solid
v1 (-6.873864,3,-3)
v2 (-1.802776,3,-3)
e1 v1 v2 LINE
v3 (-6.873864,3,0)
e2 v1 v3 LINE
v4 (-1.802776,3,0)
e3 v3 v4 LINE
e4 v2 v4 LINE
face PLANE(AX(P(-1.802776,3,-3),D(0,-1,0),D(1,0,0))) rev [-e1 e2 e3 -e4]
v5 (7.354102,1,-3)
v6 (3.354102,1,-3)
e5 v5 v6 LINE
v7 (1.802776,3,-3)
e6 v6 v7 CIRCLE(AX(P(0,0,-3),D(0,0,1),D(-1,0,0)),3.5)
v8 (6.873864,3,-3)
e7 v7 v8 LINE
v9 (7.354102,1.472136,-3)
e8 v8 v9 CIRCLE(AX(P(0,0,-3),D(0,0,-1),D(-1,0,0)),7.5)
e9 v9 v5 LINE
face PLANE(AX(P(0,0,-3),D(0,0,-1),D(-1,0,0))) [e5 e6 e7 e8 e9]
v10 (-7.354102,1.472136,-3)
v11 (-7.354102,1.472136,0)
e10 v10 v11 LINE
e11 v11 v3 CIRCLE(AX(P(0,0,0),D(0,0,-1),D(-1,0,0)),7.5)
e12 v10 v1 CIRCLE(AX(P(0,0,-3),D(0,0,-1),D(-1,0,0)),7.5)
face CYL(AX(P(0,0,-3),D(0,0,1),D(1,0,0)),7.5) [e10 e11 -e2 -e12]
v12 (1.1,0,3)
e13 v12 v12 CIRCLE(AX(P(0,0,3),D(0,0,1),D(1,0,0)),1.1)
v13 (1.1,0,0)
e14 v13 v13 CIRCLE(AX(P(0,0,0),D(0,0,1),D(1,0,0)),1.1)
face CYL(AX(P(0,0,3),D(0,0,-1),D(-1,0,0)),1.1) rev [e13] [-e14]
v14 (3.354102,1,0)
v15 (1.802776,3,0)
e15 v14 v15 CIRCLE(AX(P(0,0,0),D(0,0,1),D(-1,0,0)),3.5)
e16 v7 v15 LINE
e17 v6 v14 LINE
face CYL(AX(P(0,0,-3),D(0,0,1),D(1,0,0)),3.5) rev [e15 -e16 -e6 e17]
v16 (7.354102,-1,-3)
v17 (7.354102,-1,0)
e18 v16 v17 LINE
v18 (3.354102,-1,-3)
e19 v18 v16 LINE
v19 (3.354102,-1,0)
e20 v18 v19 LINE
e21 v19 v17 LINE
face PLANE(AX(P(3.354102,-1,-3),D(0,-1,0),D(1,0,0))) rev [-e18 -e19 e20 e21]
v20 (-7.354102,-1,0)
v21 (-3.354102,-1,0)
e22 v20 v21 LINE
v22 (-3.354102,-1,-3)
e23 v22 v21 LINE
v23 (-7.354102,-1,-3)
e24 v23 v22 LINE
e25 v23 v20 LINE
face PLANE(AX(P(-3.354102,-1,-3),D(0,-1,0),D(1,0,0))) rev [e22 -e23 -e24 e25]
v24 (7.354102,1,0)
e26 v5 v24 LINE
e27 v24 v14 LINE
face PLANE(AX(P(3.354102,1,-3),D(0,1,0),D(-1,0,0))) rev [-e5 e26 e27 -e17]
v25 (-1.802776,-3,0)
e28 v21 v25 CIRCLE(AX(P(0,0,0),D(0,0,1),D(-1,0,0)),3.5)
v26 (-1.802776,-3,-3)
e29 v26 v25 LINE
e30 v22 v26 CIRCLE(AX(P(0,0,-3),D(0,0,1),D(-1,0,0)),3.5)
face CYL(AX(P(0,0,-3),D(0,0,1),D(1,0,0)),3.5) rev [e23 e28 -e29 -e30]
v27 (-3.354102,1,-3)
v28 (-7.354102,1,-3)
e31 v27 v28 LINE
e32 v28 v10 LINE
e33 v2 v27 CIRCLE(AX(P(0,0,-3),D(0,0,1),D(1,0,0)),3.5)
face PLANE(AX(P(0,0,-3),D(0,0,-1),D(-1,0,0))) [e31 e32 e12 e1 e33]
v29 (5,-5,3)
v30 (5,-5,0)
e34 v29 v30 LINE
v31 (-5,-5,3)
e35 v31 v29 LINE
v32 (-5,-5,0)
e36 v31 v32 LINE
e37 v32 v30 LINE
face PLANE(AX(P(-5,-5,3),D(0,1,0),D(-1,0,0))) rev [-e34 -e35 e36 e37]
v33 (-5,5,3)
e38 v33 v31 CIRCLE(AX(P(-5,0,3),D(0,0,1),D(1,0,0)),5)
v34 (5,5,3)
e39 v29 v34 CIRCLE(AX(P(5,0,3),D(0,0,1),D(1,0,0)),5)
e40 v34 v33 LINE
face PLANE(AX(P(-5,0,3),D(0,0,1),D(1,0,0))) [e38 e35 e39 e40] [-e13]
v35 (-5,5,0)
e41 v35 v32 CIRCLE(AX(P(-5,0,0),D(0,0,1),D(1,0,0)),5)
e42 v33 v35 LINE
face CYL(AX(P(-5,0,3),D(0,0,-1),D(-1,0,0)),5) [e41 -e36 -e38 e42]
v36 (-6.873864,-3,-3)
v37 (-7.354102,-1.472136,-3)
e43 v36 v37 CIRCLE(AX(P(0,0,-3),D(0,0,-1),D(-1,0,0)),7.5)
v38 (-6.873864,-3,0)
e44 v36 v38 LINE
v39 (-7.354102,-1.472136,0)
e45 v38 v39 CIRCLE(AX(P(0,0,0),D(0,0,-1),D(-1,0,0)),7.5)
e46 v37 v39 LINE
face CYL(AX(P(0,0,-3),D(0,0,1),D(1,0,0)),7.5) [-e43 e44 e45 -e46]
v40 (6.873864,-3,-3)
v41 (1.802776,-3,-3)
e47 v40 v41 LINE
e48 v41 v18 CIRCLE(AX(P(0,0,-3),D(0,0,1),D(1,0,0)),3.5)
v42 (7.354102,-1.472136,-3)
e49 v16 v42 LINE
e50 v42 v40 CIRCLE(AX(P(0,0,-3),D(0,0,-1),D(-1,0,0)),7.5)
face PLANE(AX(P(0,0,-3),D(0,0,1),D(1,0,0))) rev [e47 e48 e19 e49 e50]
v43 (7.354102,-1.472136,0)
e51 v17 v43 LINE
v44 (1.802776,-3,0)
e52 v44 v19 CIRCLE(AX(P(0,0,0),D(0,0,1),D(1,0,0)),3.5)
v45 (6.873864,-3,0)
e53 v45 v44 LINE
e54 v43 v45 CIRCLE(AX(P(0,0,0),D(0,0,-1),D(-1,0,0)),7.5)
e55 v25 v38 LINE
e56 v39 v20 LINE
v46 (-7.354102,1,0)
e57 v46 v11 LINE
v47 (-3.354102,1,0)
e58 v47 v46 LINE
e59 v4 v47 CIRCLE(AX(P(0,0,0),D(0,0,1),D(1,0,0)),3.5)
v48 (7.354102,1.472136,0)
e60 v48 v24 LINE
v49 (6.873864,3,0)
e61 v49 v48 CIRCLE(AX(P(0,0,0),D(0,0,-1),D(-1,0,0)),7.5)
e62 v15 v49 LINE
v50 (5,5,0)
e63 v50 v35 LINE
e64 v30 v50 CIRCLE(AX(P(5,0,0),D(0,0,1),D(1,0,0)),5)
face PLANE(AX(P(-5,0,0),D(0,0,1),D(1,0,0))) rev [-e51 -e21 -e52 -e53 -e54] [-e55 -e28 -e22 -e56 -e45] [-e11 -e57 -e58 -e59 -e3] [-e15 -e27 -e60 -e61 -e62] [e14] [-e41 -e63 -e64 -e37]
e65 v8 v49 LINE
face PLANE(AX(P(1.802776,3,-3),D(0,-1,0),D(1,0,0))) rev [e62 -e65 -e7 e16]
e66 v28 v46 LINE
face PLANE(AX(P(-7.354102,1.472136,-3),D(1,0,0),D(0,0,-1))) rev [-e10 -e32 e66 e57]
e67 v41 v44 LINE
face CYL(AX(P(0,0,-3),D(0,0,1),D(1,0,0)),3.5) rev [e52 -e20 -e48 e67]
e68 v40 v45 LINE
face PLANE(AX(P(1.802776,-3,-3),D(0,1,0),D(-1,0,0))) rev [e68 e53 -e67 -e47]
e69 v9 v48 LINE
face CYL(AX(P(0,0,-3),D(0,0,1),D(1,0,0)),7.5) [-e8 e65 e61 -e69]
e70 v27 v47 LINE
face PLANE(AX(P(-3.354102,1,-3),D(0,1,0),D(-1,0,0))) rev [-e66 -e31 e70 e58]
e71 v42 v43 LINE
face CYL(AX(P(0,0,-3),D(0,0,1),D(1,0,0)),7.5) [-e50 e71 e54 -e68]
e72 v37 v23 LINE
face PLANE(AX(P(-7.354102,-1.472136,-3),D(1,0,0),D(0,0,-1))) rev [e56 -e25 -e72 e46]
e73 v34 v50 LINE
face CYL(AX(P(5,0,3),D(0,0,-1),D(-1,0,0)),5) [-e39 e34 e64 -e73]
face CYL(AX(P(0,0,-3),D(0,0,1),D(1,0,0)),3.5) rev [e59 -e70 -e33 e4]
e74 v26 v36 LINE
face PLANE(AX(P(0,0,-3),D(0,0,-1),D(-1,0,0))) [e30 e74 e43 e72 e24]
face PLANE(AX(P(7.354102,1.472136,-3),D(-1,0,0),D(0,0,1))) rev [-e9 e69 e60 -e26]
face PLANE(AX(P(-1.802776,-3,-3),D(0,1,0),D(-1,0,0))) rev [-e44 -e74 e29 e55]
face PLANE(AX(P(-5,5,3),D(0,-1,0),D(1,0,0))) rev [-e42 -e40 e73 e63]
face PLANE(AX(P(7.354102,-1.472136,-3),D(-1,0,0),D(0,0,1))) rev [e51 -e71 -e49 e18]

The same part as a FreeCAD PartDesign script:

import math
import FreeCAD as App
import Part
import Sketcher
from FreeCAD import Vector
Q = App.Units.Quantity

doc = App.newDocument("Part")
body = doc.addObject("PartDesign::Body", "Body")

# Sketch on XY plane
sketch1 = doc.addObject("Sketcher::SketchObject", "Sketch")
body.addObject(sketch1)
sketch1.AttachmentSupport = (doc.XY_Plane, [""])
sketch1.MapMode = "FlatFace"
sketch1.addGeometry([
    Part.LineSegment(Vector(5, 5, 0), Vector(-5, 5, 0)),  # 0
    Part.ArcOfCircle(Part.Circle(Vector(-5, 0, 0), Vector(0, 0, 1), 5), math.radians(90), math.radians(270)),  # 1
    Part.LineSegment(Vector(-5, -5, 0), Vector(5, -5, 0)),  # 2
    Part.ArcOfCircle(Part.Circle(Vector(5, 0, 0), Vector(0, 0, 1), 5), math.radians(-90), math.radians(90)),  # 3
    Part.Circle(Vector(0, 0, 0), Vector(0, 0, 1), 1.1),  # 4
], False)
sketch1.addConstraint([
    Sketcher.Constraint("Tangent", 0, 2, 1, 1),
    Sketcher.Constraint("Tangent", 1, 2, 2, 1),
    Sketcher.Constraint("Tangent", 2, 2, 3, 1),
    Sketcher.Constraint("Tangent", 3, 2, 0, 1),
    Sketcher.Constraint("Horizontal", 0),
    Sketcher.Constraint("Horizontal", 2),
    Sketcher.Constraint("Coincident", 4, 3, -1, 1),
    Sketcher.Constraint("Symmetric", 1, 3, 3, 3, -1, 1),
    Sketcher.Constraint("Radius", 1, Q("5 mm")),
    Sketcher.Constraint("Diameter", 4, Q("2.2 mm")),
    Sketcher.Constraint("DistanceX", 0, 2, 0, 1, Q("10 mm")),
])
pad1 = doc.addObject("PartDesign::Pad", "Pad")
body.addObject(pad1)
pad1.Profile = sketch1
pad1.Length = 3

# Sketch on XY plane
sketch2 = doc.addObject("Sketcher::SketchObject", "Sketch001")
body.addObject(sketch2)
sketch2.AttachmentSupport = (doc.XY_Plane, [""])
sketch2.MapMode = "FlatFace"
sketch2.addGeometry([
    Part.LineSegment(Vector(1.8, 3, 0), Vector(6.87, 3, 0)),  # 0
    Part.ArcOfCircle(Part.Circle(Vector(0, 0, 0), Vector(0, 0, 1), 7.5), math.radians(11.32), math.radians(23.58)),  # 1
    Part.LineSegment(Vector(7.35, 1.47, 0), Vector(7.35, 1, 0)),  # 2
    Part.LineSegment(Vector(7.35, 1, 0), Vector(3.35, 1, 0)),  # 3
    Part.ArcOfCircle(Part.Circle(Vector(0, 0, 0), Vector(0, 0, 1), 3.5), math.radians(17), math.radians(59)),  # 4
    Part.LineSegment(Vector(7.35, -1, 0), Vector(7.35, -1.47, 0)),  # 5
    Part.ArcOfCircle(Part.Circle(Vector(0, 0, 0), Vector(0, 0, 1), 7.5), math.radians(-23.58), math.radians(-11.32)),  # 6
    Part.LineSegment(Vector(6.87, -3, 0), Vector(1.8, -3, 0)),  # 7
    Part.ArcOfCircle(Part.Circle(Vector(0, 0, 0), Vector(0, 0, 1), 3.5), math.radians(-59), math.radians(-17)),  # 8
    Part.LineSegment(Vector(3.35, -1, 0), Vector(7.35, -1, 0)),  # 9
    Part.LineSegment(Vector(-1.8, -3, 0), Vector(-6.87, -3, 0)),  # 10
    Part.ArcOfCircle(Part.Circle(Vector(0, 0, 0), Vector(0, 0, 1), 7.5), math.radians(-168.68), math.radians(-156.42)),  # 11
    Part.LineSegment(Vector(-7.35, -1.47, 0), Vector(-7.35, -1, 0)),  # 12
    Part.LineSegment(Vector(-7.35, -1, 0), Vector(-3.35, -1, 0)),  # 13
    Part.ArcOfCircle(Part.Circle(Vector(0, 0, 0), Vector(0, 0, 1), 3.5), math.radians(-163), math.radians(-121)),  # 14
    Part.LineSegment(Vector(-7.35, 1, 0), Vector(-7.35, 1.47, 0)),  # 15
    Part.ArcOfCircle(Part.Circle(Vector(0, 0, 0), Vector(0, 0, 1), 7.5), math.radians(156.42), math.radians(168.68)),  # 16
    Part.LineSegment(Vector(-6.87, 3, 0), Vector(-1.8, 3, 0)),  # 17
    Part.ArcOfCircle(Part.Circle(Vector(0, 0, 0), Vector(0, 0, 1), 3.5), math.radians(121), math.radians(163)),  # 18
    Part.LineSegment(Vector(-3.35, 1, 0), Vector(-7.35, 1, 0)),  # 19
], False)
sketch2.addConstraint([
    Sketcher.Constraint("Coincident", 0, 2, 1, 2),
    Sketcher.Constraint("Coincident", 1, 1, 2, 1),
    Sketcher.Constraint("Coincident", 2, 2, 3, 1),
    Sketcher.Constraint("Coincident", 3, 2, 4, 1),
    Sketcher.Constraint("Coincident", 4, 2, 0, 1),
    Sketcher.Constraint("Coincident", 5, 2, 6, 2),
    Sketcher.Constraint("Coincident", 6, 1, 7, 1),
    Sketcher.Constraint("Coincident", 7, 2, 8, 1),
    Sketcher.Constraint("Coincident", 8, 2, 9, 1),
    Sketcher.Constraint("Coincident", 9, 2, 5, 1),
    Sketcher.Constraint("Coincident", 10, 2, 11, 2),
    Sketcher.Constraint("Coincident", 11, 1, 12, 1),
    Sketcher.Constraint("Coincident", 12, 2, 13, 1),
    Sketcher.Constraint("Coincident", 13, 2, 14, 1),
    Sketcher.Constraint("Coincident", 14, 2, 10, 1),
    Sketcher.Constraint("Coincident", 15, 2, 16, 2),
    Sketcher.Constraint("Coincident", 16, 1, 17, 1),
    Sketcher.Constraint("Coincident", 17, 2, 18, 1),
    Sketcher.Constraint("Coincident", 18, 2, 19, 1),
    Sketcher.Constraint("Coincident", 19, 2, 15, 1),
    Sketcher.Constraint("Horizontal", 0),
    Sketcher.Constraint("Vertical", 2),
    Sketcher.Constraint("Horizontal", 3),
    Sketcher.Constraint("Vertical", 5),
    Sketcher.Constraint("Horizontal", 7),
    Sketcher.Constraint("Horizontal", 9),
    Sketcher.Constraint("Horizontal", 10),
    Sketcher.Constraint("Vertical", 12),
    Sketcher.Constraint("Horizontal", 13),
    Sketcher.Constraint("Vertical", 15),
    Sketcher.Constraint("Horizontal", 17),
    Sketcher.Constraint("Horizontal", 19),
    Sketcher.Constraint("Coincident", 1, 3, -1, 1),
    Sketcher.Constraint("Coincident", 4, 3, -1, 1),
    Sketcher.Constraint("Coincident", 6, 3, -1, 1),
    Sketcher.Constraint("Coincident", 8, 3, -1, 1),
    Sketcher.Constraint("Coincident", 11, 3, -1, 1),
    Sketcher.Constraint("Coincident", 14, 3, -1, 1),
    Sketcher.Constraint("Coincident", 16, 3, -1, 1),
    Sketcher.Constraint("Coincident", 18, 3, -1, 1),
    Sketcher.Constraint("Equal", 1, 6),
    Sketcher.Constraint("Equal", 4, 8),
    Sketcher.Constraint("Equal", 6, 11),
    Sketcher.Constraint("Equal", 8, 14),
    Sketcher.Constraint("Equal", 11, 16),
    Sketcher.Constraint("Equal", 14, 18),
    Sketcher.Constraint("Symmetric", 2, 2, 12, 2, -1, 1),
    Sketcher.Constraint("Symmetric", 9, 2, 19, 2, -1, 1),
    Sketcher.Constraint("Symmetric", 9, 2, 12, 2, -2),
    Sketcher.Constraint("Horizontal", 7, 2, 10, 2),
    Sketcher.Constraint("Horizontal", 4, 2, 16, 1),
    Sketcher.Constraint("Vertical", 0, 2, 6, 1),
    Sketcher.Constraint("Radius", 1, Q("7.5 mm")),
    Sketcher.Constraint("Radius", 4, Q("3.5 mm")),
    Sketcher.Constraint("DistanceX", 3, 2, 3, 1, Q("4 mm")),
    Sketcher.Constraint("DistanceY", -1, 1, 0, 2, Q("3 mm")),
    Sketcher.Constraint("DistanceY", -1, 1, 2, 2, Q("1 mm")),
])
pad2 = doc.addObject("PartDesign::Pad", "Pad001")
body.addObject(pad2)
pad2.Profile = sketch2
pad2.Length = 3
pad2.Reversed = True

doc.recompute()
